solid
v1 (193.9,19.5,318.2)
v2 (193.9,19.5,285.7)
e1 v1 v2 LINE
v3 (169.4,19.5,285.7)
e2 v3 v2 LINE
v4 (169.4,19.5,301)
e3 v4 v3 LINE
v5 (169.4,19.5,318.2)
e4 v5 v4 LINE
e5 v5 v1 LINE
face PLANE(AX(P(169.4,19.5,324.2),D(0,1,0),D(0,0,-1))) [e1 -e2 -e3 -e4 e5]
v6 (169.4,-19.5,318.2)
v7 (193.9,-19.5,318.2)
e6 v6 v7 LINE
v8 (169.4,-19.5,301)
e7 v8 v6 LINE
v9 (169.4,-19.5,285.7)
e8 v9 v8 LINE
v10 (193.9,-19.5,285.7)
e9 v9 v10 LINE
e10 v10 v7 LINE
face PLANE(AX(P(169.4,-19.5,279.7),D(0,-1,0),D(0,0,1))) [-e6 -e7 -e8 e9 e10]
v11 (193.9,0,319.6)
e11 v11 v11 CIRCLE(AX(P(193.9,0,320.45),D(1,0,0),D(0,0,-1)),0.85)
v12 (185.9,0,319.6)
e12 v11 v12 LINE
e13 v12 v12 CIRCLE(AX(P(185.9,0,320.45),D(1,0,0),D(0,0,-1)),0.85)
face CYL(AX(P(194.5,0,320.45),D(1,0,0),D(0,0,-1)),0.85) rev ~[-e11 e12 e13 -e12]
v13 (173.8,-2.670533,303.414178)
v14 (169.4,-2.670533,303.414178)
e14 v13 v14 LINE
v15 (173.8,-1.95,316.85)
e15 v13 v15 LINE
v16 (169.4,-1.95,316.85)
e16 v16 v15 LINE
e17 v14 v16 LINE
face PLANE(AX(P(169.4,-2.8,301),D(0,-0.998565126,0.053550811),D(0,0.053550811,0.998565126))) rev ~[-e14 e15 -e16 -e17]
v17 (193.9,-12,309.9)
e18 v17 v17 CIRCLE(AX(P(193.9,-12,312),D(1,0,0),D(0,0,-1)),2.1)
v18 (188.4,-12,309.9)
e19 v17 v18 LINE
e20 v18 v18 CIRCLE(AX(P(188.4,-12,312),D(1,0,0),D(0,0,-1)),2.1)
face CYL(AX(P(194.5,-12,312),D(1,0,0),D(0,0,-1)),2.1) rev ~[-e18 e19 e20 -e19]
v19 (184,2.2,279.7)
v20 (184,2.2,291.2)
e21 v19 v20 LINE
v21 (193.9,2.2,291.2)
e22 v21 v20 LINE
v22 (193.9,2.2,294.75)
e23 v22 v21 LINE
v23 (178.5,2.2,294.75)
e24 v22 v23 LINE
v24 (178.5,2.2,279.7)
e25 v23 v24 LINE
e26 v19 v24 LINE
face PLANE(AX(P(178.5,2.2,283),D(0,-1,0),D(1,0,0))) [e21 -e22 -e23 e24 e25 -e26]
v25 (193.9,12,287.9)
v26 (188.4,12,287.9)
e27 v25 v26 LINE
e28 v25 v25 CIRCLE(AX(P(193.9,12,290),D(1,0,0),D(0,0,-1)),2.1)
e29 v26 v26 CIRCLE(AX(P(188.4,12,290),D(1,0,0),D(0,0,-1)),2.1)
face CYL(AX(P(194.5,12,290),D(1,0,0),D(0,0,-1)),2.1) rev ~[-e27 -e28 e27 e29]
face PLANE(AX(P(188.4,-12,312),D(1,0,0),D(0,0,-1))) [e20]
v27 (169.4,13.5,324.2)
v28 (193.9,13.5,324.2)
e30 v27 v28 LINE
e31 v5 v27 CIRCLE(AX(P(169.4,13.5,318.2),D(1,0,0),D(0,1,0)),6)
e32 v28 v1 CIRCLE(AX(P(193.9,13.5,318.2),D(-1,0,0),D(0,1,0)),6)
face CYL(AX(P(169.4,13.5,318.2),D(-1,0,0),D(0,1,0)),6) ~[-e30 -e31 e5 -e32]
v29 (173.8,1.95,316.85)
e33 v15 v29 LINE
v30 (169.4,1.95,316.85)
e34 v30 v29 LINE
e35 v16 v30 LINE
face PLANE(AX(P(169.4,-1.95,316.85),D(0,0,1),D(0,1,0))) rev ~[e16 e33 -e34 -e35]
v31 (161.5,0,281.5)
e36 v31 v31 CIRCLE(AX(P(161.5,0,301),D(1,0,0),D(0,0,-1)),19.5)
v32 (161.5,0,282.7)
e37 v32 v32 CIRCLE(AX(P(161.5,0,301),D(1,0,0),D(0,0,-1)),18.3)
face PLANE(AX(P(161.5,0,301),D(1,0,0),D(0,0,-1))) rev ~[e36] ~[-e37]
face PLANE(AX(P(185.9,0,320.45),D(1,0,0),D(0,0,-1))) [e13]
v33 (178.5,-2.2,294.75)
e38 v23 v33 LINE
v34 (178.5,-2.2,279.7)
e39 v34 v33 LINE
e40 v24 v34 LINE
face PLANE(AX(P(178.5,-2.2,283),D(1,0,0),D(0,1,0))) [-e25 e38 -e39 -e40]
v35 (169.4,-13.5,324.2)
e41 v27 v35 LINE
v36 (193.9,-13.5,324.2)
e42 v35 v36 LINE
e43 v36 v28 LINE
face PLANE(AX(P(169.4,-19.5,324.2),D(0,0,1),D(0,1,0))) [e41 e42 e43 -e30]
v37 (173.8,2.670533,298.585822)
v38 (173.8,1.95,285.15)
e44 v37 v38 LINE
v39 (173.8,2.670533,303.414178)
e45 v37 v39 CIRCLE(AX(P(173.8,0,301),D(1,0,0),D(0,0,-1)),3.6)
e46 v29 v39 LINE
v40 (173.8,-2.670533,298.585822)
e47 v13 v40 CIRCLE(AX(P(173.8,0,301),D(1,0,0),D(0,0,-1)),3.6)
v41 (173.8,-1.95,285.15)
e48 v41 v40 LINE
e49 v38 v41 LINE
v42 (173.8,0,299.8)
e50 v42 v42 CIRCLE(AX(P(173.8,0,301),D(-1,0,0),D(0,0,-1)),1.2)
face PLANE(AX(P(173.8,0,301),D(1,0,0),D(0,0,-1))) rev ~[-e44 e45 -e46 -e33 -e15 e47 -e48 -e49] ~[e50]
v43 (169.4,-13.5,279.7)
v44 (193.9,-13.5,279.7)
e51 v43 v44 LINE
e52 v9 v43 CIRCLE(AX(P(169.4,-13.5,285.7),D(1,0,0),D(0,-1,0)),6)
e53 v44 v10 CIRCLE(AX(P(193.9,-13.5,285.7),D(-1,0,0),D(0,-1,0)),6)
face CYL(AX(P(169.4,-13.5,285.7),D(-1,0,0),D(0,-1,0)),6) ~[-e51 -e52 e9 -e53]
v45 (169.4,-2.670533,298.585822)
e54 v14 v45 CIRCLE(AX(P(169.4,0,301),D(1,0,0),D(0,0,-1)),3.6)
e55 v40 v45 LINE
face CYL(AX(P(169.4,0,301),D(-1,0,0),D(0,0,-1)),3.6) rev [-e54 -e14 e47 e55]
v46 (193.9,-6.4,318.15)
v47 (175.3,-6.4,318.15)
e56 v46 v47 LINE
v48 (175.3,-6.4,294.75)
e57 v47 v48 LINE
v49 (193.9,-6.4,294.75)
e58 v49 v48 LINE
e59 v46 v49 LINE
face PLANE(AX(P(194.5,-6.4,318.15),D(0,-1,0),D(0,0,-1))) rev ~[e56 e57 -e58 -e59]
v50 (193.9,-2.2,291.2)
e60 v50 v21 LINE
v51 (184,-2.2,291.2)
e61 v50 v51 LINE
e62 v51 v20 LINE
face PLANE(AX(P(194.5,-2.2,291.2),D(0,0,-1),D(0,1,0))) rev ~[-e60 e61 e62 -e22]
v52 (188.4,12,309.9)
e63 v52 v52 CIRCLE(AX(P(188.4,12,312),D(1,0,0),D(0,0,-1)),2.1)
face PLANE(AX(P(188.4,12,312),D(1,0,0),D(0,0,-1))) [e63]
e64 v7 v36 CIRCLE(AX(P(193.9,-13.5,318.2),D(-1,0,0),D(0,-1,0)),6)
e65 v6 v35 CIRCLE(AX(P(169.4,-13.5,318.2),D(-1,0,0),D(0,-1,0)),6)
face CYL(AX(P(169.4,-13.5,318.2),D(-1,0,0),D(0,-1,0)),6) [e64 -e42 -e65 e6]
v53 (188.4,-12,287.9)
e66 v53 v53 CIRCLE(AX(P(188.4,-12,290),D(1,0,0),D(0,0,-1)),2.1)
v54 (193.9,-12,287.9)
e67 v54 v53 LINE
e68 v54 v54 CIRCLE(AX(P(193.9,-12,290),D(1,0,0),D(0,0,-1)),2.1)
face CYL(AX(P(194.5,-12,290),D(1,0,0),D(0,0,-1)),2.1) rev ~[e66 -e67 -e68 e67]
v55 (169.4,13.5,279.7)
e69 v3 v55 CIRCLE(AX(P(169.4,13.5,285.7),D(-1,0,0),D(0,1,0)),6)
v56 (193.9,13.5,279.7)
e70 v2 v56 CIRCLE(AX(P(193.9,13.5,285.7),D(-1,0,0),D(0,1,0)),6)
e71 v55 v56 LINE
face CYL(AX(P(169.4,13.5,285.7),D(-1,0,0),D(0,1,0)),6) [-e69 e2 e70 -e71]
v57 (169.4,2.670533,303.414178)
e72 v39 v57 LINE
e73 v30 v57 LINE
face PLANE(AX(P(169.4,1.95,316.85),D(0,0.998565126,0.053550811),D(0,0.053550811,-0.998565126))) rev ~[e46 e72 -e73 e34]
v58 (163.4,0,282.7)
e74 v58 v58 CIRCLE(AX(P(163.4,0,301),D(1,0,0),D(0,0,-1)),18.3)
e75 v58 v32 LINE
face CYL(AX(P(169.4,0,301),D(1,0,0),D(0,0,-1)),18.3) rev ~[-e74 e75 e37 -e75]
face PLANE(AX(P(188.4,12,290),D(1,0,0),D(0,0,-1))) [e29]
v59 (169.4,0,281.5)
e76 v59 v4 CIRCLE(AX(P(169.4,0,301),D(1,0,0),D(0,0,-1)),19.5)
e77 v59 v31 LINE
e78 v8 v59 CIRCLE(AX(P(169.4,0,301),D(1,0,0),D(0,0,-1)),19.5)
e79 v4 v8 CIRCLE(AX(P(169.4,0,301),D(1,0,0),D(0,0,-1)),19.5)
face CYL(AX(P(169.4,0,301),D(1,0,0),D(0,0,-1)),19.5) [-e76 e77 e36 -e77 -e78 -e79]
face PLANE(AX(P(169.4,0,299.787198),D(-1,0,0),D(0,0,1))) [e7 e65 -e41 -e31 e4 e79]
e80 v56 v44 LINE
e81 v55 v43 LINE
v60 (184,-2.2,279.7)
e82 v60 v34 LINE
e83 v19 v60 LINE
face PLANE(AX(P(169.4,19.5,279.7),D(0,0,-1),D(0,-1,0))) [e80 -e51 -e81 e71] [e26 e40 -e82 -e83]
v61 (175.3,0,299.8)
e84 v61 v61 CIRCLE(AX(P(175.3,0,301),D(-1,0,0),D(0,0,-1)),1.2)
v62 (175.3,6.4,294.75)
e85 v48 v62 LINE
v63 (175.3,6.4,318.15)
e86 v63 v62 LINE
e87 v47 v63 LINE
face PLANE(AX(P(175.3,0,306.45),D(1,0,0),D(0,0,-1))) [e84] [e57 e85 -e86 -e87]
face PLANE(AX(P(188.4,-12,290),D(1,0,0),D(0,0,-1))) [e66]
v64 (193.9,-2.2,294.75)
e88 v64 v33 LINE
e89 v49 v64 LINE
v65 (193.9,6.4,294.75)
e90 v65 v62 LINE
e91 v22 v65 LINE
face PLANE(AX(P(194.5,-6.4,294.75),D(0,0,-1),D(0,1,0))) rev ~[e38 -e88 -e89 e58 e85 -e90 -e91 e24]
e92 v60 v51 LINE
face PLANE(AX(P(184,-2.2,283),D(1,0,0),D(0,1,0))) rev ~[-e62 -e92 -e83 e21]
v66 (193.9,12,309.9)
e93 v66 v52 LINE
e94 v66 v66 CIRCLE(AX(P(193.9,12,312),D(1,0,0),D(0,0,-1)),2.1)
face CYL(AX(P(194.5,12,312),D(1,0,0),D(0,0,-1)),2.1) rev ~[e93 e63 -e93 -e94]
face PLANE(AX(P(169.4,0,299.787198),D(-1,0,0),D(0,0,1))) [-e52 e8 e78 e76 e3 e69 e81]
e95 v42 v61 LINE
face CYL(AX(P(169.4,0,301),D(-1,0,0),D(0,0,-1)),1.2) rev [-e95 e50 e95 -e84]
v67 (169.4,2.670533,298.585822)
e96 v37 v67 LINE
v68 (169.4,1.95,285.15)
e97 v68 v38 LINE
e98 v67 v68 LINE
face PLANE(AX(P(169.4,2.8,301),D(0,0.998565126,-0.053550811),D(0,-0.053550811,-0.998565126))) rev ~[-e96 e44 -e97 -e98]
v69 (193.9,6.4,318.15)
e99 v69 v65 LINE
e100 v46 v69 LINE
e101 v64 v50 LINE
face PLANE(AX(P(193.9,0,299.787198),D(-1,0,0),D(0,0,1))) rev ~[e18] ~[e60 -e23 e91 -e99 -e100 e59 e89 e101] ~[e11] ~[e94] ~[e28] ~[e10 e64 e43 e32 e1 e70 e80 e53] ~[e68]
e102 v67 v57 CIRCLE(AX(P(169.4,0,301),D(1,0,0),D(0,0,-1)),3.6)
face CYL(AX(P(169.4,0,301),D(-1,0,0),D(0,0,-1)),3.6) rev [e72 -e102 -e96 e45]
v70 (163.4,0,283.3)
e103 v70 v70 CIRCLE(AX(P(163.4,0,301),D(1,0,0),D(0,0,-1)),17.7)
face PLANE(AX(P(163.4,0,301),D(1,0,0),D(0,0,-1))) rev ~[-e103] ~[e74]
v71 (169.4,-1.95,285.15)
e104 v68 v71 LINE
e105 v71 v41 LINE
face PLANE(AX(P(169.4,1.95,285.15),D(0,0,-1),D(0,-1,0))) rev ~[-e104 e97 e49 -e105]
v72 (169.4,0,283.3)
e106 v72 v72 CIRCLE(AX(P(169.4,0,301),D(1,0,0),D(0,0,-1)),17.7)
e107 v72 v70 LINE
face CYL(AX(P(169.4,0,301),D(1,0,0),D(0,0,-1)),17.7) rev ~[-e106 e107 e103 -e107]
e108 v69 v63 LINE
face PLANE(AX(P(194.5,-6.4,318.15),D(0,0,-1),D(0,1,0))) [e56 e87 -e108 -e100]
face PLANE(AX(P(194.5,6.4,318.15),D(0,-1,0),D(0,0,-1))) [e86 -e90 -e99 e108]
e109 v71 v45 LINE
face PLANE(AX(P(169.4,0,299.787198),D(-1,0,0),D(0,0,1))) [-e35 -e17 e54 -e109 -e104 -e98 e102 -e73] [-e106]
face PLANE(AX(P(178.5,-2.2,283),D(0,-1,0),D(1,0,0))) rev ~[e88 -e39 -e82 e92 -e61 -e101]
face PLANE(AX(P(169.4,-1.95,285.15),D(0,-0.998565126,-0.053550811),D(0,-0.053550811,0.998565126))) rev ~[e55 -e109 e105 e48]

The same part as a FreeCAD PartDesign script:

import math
import FreeCAD as App
import Part
import Sketcher

V = App.Vector
Q = App.Units.Quantity

doc = App.newDocument("Part")
body = doc.addObject("PartDesign::Body", "Body")

sketch1 = body.newObject("Sketcher::SketchObject", "Sketch")
sketch1.AttachmentSupport = (doc.getObject("YZ_Plane"), [""])
sketch1.MapMode = "FlatFace"
sketch1.AttachmentOffset = App.Placement(V(0, 0, 169.4), App.Rotation())
sketch1.addGeometry([
    Part.LineSegment(V(8, 324, 0), V(-8, 324, 0)),
    Part.LineSegment(V(-8, 324, 0), V(-8, 284, 0)),
    Part.LineSegment(V(-8, 284, 0), V(8, 284, 0)),
    Part.LineSegment(V(8, 284, 0), V(8, 324, 0)),
], False)
sketch1.addConstraint([
    Sketcher.Constraint("Coincident", 0, 2, 1, 1),
    Sketcher.Constraint("Coincident", 1, 2, 2, 1),
    Sketcher.Constraint("Coincident", 2, 2, 3, 1),
    Sketcher.Constraint("Coincident", 3, 2, 0, 1),
    Sketcher.Constraint("Horizontal", 0),
    Sketcher.Constraint("Vertical", 1),
    Sketcher.Constraint("Horizontal", 2),
    Sketcher.Constraint("Vertical", 3),
    Sketcher.Constraint("DistanceX", 0, 2, 0, 1, Q("17 mm")),
    Sketcher.Constraint("DistanceY", 1, 2, 1, 1, Q("40.7 mm")),
    Sketcher.Constraint("DistanceX", 0, 2, -1, 1, Q("8.5 mm")),
    Sketcher.Constraint("DistanceY", -1, 1, 0, 2, Q("324.2 mm")),
])
pad1 = body.newObject("PartDesign::Pad", "Pad")
pad1.Profile = sketch1
pad1.Length = 24.5

sketch2 = body.newObject("Sketcher::SketchObject", "Sketch001")
sketch2.AttachmentSupport = (doc.getObject("YZ_Plane"), [""])
sketch2.MapMode = "FlatFace"
sketch2.AttachmentOffset = App.Placement(V(0, 0, 189.9), App.Rotation())
sketch2.addGeometry([
    Part.LineSegment(V(17, 324, 0), V(-17, 324, 0)),
    Part.LineSegment(V(-17, 324, 0), V(-17, 284, 0)),
    Part.LineSegment(V(-17, 284, 0), V(17, 284, 0)),
    Part.LineSegment(V(17, 284, 0), V(17, 324, 0)),
], False)
sketch2.addConstraint([
    Sketcher.Constraint("Coincident", 0, 2, 1, 1),
    Sketcher.Constraint("Coincident", 1, 2, 2, 1),
    Sketcher.Constraint("Coincident", 2, 2, 3, 1),
    Sketcher.Constraint("Coincident", 3, 2, 0, 1),
    Sketcher.Constraint("Horizontal", 0),
    Sketcher.Constraint("Vertical", 1),
    Sketcher.Constraint("Horizontal", 2),
    Sketcher.Constraint("Vertical", 3),
    Sketcher.Constraint("DistanceX", 0, 2, 0, 1, Q("34 mm")),
    Sketcher.Constraint("DistanceY", 1, 2, 1, 1, Q("40.7 mm")),
    Sketcher.Constraint("DistanceX", 0, 2, -1, 1, Q("17 mm")),
    Sketcher.Constraint("DistanceY", -1, 1, 0, 2, Q("324.2 mm")),
])
pad2 = body.newObject("PartDesign::Pad", "Pad001")
pad2.Profile = sketch2
pad2.Length = 4

sketch3 = body.newObject("Sketcher::SketchObject", "Sketch002")
sketch3.AttachmentSupport = (doc.getObject("YZ_Plane"), [""])
sketch3.MapMode = "FlatFace"
sketch3.AttachmentOffset = App.Placement(V(0, 0, 169.4), App.Rotation())
sketch3.addGeometry(Part.Circle(V(0, 301, 0), V(0, 0, 1), 3.6), False)
sketch3.addConstraint([
    Sketcher.Constraint("PointOnObject", 0, 3, -2),
    Sketcher.Constraint("Diameter", 0, Q("7.2 mm")),
    Sketcher.Constraint("DistanceY", -1, 1, 0, 3, Q("301 mm")),
])
pocket1 = body.newObject("PartDesign::Pocket", "Pocket")
pocket1.Profile = sketch3
pocket1.Length = 4.4
pocket1.Reversed = True

sketch4 = body.newObject("Sketcher::SketchObject", "Sketch003")
sketch4.AttachmentSupport = (doc.getObject("YZ_Plane"), [""])
sketch4.MapMode = "FlatFace"
sketch4.AttachmentOffset = App.Placement(V(0, 0, 169.4), App.Rotation())
sketch4.addGeometry([
    Part.LineSegment(V(-2.8, 301, 0), V(-1.9, 285.1, 0)),
    Part.LineSegment(V(-1.9, 285.1, 0), V(1.9, 285.1, 0)),
    Part.LineSegment(V(1.9, 285.1, 0), V(2.8, 301, 0)),
    Part.LineSegment(V(2.8, 301, 0), V(1.9, 316.9, 0)),
    Part.LineSegment(V(1.9, 316.9, 0), V(-1.9, 316.9, 0)),
    Part.LineSegment(V(-1.9, 316.9, 0), V(-2.8, 301, 0)),
], False)
sketch4.addConstraint([
    Sketcher.Constraint("Coincident", 0, 2, 1, 1),
    Sketcher.Constraint("Coincident", 1, 2, 2, 1),
    Sketcher.Constraint("Coincident", 2, 2, 3, 1),
    Sketcher.Constraint("Coincident", 3, 2, 4, 1),
    Sketcher.Constraint("Coincident", 4, 2, 5, 1),
    Sketcher.Constraint("Coincident", 5, 2, 0, 1),
    Sketcher.Constraint("Horizontal", 1),
    Sketcher.Constraint("Horizontal", 4),
    Sketcher.Constraint("Symmetric", 2, 2, 5, 2, -2),
    Sketcher.Constraint("Parallel", 0, 3),
    Sketcher.Constraint("Parallel", 2, 5),
    Sketcher.Constraint("Vertical", 1, 2, 3, 2),
    Sketcher.Constraint("Vertical", 0, 2, 4, 2),
    Sketcher.Constraint("DistanceX", 1, 1, 1, 2, Q("3.9 mm")),
    Sketcher.Constraint("DistanceY", -1, 1, 2, 2, Q("301 mm")),
    Sketcher.Constraint("DistanceX", -1, 1, 2, 2, Q("2.8 mm")),
    Sketcher.Constraint("DistanceY", 1, 2, 3, 2, Q("31.7 mm")),
])
pocket2 = body.newObject("PartDesign::Pocket", "Pocket001")
pocket2.Profile = sketch4
pocket2.Length = 4.4
pocket2.Reversed = True

sketch5 = body.newObject("Sketcher::SketchObject", "Sketch004")
sketch5.AttachmentSupport = (doc.getObject("YZ_Plane"), [""])
sketch5.MapMode = "FlatFace"
sketch5.AttachmentOffset = App.Placement(V(0, 0, 169.4), App.Rotation())
sketch5.addGeometry(Part.Circle(V(0, 301, 0), V(0, 0, 1), 1.2), False)
sketch5.addConstraint([
    Sketcher.Constraint("PointOnObject", 0, 3, -2),
    Sketcher.Constraint("Diameter", 0, Q("2.4 mm")),
    Sketcher.Constraint("DistanceY", -1, 1, 0, 3, Q("301 mm")),
])
pocket3 = body.newObject("PartDesign::Pocket", "Pocket002")
pocket3.Profile = sketch5
pocket3.Length = 7
pocket3.Reversed = True

sketch6 = body.newObject("Sketcher::SketchObject", "Sketch005")
sketch6.AttachmentSupport = (doc.getObject("YZ_Plane"), [""])
sketch6.MapMode = "FlatFace"
sketch6.AttachmentOffset = App.Placement(V(0, 0, 194.5), App.Rotation())
sketch6.addGeometry([
    Part.LineSegment(V(6, 318, 0), V(-6, 318, 0)),
    Part.LineSegment(V(-6, 318, 0), V(-6, 295, 0)),
    Part.LineSegment(V(-6, 295, 0), V(6, 295, 0)),
    Part.LineSegment(V(6, 295, 0), V(6, 318, 0)),
], False)
sketch6.addConstraint([
    Sketcher.Constraint("Coincident", 0, 2, 1, 1),
    Sketcher.Constraint("Coincident", 1, 2, 2, 1),
    Sketcher.Constraint("Coincident", 2, 2, 3, 1),
    Sketcher.Constraint("Coincident", 3, 2, 0, 1),
    Sketcher.Constraint("Horizontal", 0),
    Sketcher.Constraint("Vertical", 1),
    Sketcher.Constraint("Horizontal", 2),
    Sketcher.Constraint("Vertical", 3),
    Sketcher.Constraint("DistanceX", 0, 2, 0, 1, Q("12.8 mm")),
    Sketcher.Constraint("DistanceY", 1, 2, 1, 1, Q("23.4 mm")),
    Sketcher.Constraint("DistanceX", 0, 2, -1, 1, Q("6.4 mm")),
    Sketcher.Constraint("DistanceY", -1, 1, 0, 2, Q("318.15 mm")),
])
pocket4 = body.newObject("PartDesign::Pocket", "Pocket003")
pocket4.Profile = sketch6
pocket4.Length = 19.2

sketch7 = body.newObject("Sketcher::SketchObject", "Sketch006")
sketch7.AttachmentSupport = (doc.getObject("YZ_Plane"), [""])
sketch7.MapMode = "FlatFace"
sketch7.AttachmentOffset = App.Placement(V(0, 0, 194.5), App.Rotation())
sketch7.addGeometry([
    Part.LineSegment(V(2.2, 294.9, 0), V(-2.2, 294.9, 0)),
    Part.LineSegment(V(-2.2, 294.9, 0), V(-2.2, 291.2, 0)),
    Part.LineSegment(V(-2.2, 291.2, 0), V(2.2, 291.2, 0)),
    Part.LineSegment(V(2.2, 291.2, 0), V(2.2, 294.9, 0)),
], False)
sketch7.addConstraint([
    Sketcher.Constraint("Coincident", 0, 2, 1, 1),
    Sketcher.Constraint("Coincident", 1, 2, 2, 1),
    Sketcher.Constraint("Coincident", 2, 2, 3, 1),
    Sketcher.Constraint("Coincident", 3, 2, 0, 1),
    Sketcher.Constraint("Horizontal", 0),
    Sketcher.Constraint("Vertical", 1),
    Sketcher.Constraint("Horizontal", 2),
    Sketcher.Constraint("Vertical", 3),
    Sketcher.Constraint("DistanceX", 0, 2, 0, 1, Q("4.4 mm")),
    Sketcher.Constraint("DistanceY", 1, 2, 1, 1, Q("3.7 mm")),
    Sketcher.Constraint("DistanceX", 0, 2, -1, 1, Q("2.2 mm")),
    Sketcher.Constraint("DistanceY", -1, 1, 0, 2, Q("294.9 mm")),
])
pocket5 = body.newObject("PartDesign::Pocket", "Pocket004")
pocket5.Profile = sketch7
pocket5.Length = 16

sketch8 = body.newObject("Sketcher::SketchObject", "Sketch007")
sketch8.AttachmentSupport = (doc.getObject("YZ_Plane"), [""])
sketch8.MapMode = "FlatFace"
sketch8.AttachmentOffset = App.Placement(V(0, 0, 194.5), App.Rotation())
sketch8.addGeometry(Part.Circle(V(0, 320.4, 0), V(0, 0, 1), 0.8), False)
sketch8.addConstraint([
    Sketcher.Constraint("PointOnObject", 0, 3, -2),
    Sketcher.Constraint("Diameter", 0, Q("1.7 mm")),
    Sketcher.Constraint("DistanceY", -1, 1, 0, 3, Q("320.45 mm")),
])
pocket6 = body.newObject("PartDesign::Pocket", "Pocket005")
pocket6.Profile = sketch8
pocket6.Length = 8.6

sketch9 = body.newObject("Sketcher::SketchObject", "Sketch008")
sketch9.AttachmentSupport = (doc.getObject("YZ_Plane"), [""])
sketch9.MapMode = "FlatFace"
sketch9.AttachmentOffset = App.Placement(V(0, 0, 194.5), App.Rotation())
sketch9.addGeometry([
    Part.Circle(V(12, 290, 0), V(0, 0, 1), 1.7),
    Part.Circle(V(-12, 290, 0), V(0, 0, 1), 1.7),
    Part.Circle(V(12, 312, 0), V(0, 0, 1), 1.7),
    Part.Circle(V(-12, 312, 0), V(0, 0, 1), 1.7),
], False)
sketch9.addConstraint([
    Sketcher.Constraint("Equal", 0, 1),
    Sketcher.Constraint("Equal", 1, 2),
    Sketcher.Constraint("Equal", 2, 3),
    Sketcher.Constraint("Symmetric", 0, 3, 1, 3, -2),
    Sketcher.Constraint("Symmetric", 2, 3, 3, 3, -2),
    Sketcher.Constraint("Vertical", 0, 3, 2, 3),
    Sketcher.Constraint("Diameter", 0, Q("3.4 mm")),
    Sketcher.Constraint("DistanceX", -1, 1, 0, 3, Q("12 mm")),
    Sketcher.Constraint("DistanceY", -1, 1, 0, 3, Q("290 mm")),
    Sketcher.Constraint("DistanceY", -1, 1, 2, 3, Q("312 mm")),
])
pocket7 = body.newObject("PartDesign::Pocket", "Pocket006")
pocket7.Profile = sketch9
pocket7.Length = 4.7

sketch10 = body.newObject("Sketcher::SketchObject", "Sketch009")
sketch10.AttachmentSupport = (doc.getObject("XY_Plane"), [""])
sketch10.MapMode = "FlatFace"
sketch10.AttachmentOffset = App.Placement(V(0, 0, 283), App.Rotation())
sketch10.addGeometry([
    Part.LineSegment(V(178.5, 2.2, 0), V(178.5, -2.2, 0)),
    Part.LineSegment(V(178.5, -2.2, 0), V(184, -2.2, 0)),
    Part.LineSegment(V(184, -2.2, 0), V(184, 2.2, 0)),
    Part.LineSegment(V(184, 2.2, 0), V(178.5, 2.2, 0)),
], False)
sketch10.addConstraint([
    Sketcher.Constraint("Coincident", 0, 2, 1, 1),
    Sketcher.Constraint("Coincident", 1, 2, 2, 1),
    Sketcher.Constraint("Coincident", 2, 2, 3, 1),
    Sketcher.Constraint("Coincident", 3, 2, 0, 1),
    Sketcher.Constraint("Vertical", 0),
    Sketcher.Constraint("Horizontal", 1),
    Sketcher.Constraint("Vertical", 2),
    Sketcher.Constraint("Horizontal", 3),
    Sketcher.Constraint("DistanceX", 1, 1, 1, 2, Q("5.5 mm")),
    Sketcher.Constraint("DistanceY", 0, 2, 0, 1, Q("4.4 mm")),
    Sketcher.Constraint("DistanceX", -1, 1, 1, 2, Q("184 mm")),
    Sketcher.Constraint("DistanceY", 0, 2, -1, 1, Q("2.2 mm")),
])
pocket8 = body.newObject("PartDesign::Pocket", "Pocket007")
pocket8.Profile = sketch10
pocket8.Length = 8.3
pocket8.Reversed = True

sketch11 = body.newObject("Sketcher::SketchObject", "Sketch010")
sketch11.AttachmentSupport = (doc.getObject("YZ_Plane"), [""])
sketch11.MapMode = "FlatFace"
sketch11.AttachmentOffset = App.Placement(V(0, 0, 169.4), App.Rotation())
sketch11.addGeometry([
    Part.LineSegment(V(-20, 324, 0), V(-20, 280, 0)),
    Part.LineSegment(V(-20, 280, 0), V(20, 280, 0)),
    Part.LineSegment(V(20, 280, 0), V(20, 324, 0)),
    Part.LineSegment(V(20, 324, 0), V(8, 324, 0)),
    Part.LineSegment(V(8, 324, 0), V(8, 284, 0)),
    Part.LineSegment(V(8, 284, 0), V(-8, 284, 0)),
    Part.LineSegment(V(-8, 284, 0), V(-8, 324, 0)),
    Part.LineSegment(V(-8, 324, 0), V(-20, 324, 0)),
], False)
sketch11.addConstraint([
    Sketcher.Constraint("Coincident", 0, 2, 1, 1),
    Sketcher.Constraint("Coincident", 1, 2, 2, 1),
    Sketcher.Constraint("Coincident", 2, 2, 3, 1),
    Sketcher.Constraint("Coincident", 3, 2, 4, 1),
    Sketcher.Constraint("Coincident", 4, 2, 5, 1),
    Sketcher.Constraint("Coincident", 5, 2, 6, 1),
    Sketcher.Constraint("Coincident", 6, 2, 7, 1),
    Sketcher.Constraint("Coincident", 7, 2, 0, 1),
    Sketcher.Constraint("Vertical", 0),
    Sketcher.Constraint("Horizontal", 1),
    Sketcher.Constraint("Vertical", 2),
    Sketcher.Constraint("Horizontal", 3),
    Sketcher.Constraint("Vertical", 4),
    Sketcher.Constraint("Horizontal", 5),
    Sketcher.Constraint("Vertical", 6),
    Sketcher.Constraint("Horizontal", 7),
    Sketcher.Constraint("Symmetric", 3, 2, 6, 2, -2),
    Sketcher.Constraint("Equal", 3, 7),
    Sketcher.Constraint("DistanceX", 1, 1, 1, 2, Q("39 mm")),
    Sketcher.Constraint("DistanceX", 3, 2, 3, 1, Q("11 mm")),
    Sketcher.Constraint("DistanceY", 0, 2, 0, 1, Q("44.5 mm")),
    Sketcher.Constraint("DistanceY", 4, 2, 4, 1, Q("40.7 mm")),
    Sketcher.Constraint("DistanceY", -1, 1, 0, 2, Q("279.7 mm")),
])
pad3 = body.newObject("PartDesign::Pad", "Pad002")
pad3.Profile = sketch11
pad3.Length = 24.5

sketch12 = body.newObject("Sketcher::SketchObject", "Sketch011")
sketch12.AttachmentSupport = (doc.getObject("XY_Plane"), [""])
sketch12.MapMode = "FlatFace"
sketch12.AttachmentOffset = App.Placement(V(0, 0, 283), App.Rotation())
sketch12.addGeometry([
    Part.LineSegment(V(178.5, 2.2, 0), V(178.5, -2.2, 0)),
    Part.LineSegment(V(178.5, -2.2, 0), V(184, -2.2, 0)),
    Part.LineSegment(V(184, -2.2, 0), V(184, 2.2, 0)),
    Part.LineSegment(V(184, 2.2, 0), V(178.5, 2.2, 0)),
], False)
sketch12.addConstraint([
    Sketcher.Constraint("Coincident", 0, 2, 1, 1),
    Sketcher.Constraint("Coincident", 1, 2, 2, 1),
    Sketcher.Constraint("Coincident", 2, 2, 3, 1),
    Sketcher.Constraint("Coincident", 3, 2, 0, 1),
    Sketcher.Constraint("Vertical", 0),
    Sketcher.Constraint("Horizontal", 1),
    Sketcher.Constraint("Vertical", 2),
    Sketcher.Constraint("Horizontal", 3),
    Sketcher.Constraint("DistanceX", 1, 1, 1, 2, Q("5.5 mm")),
    Sketcher.Constraint("DistanceY", 0, 2, 0, 1, Q("4.4 mm")),
    Sketcher.Constraint("DistanceX", -1, 1, 1, 2, Q("184 mm")),
    Sketcher.Constraint("DistanceY", 0, 2, -1, 1, Q("2.2 mm")),
])
pocket9 = body.newObject("PartDesign::Pocket", "Pocket008")
pocket9.Profile = sketch12
pocket9.Length = 7
pocket9.Midplane = True

sketch13 = body.newObject("Sketcher::SketchObject", "Sketch012")
sketch13.AttachmentSupport = (doc.getObject("YZ_Plane"), [""])
sketch13.MapMode = "FlatFace"
sketch13.AttachmentOffset = App.Placement(V(0, 0, 169.4), App.Rotation())
sketch13.addGeometry([
    Part.LineSegment(V(13.5, 325.5, 0), V(13.5, 324.2, 0)),
    Part.ArcOfCircle(Part.Circle(V(13.5, 318.2, 0), V(0, 0, 1), 6), math.radians(0), math.radians(90)),
    Part.LineSegment(V(19.5, 318.2, 0), V(20.5, 318.2, 0)),
    Part.LineSegment(V(20.5, 318.2, 0), V(20.5, 325.5, 0)),
    Part.LineSegment(V(20.5, 325.5, 0), V(13.5, 325.5, 0)),
    Part.LineSegment(V(-13.5, 324.2, 0), V(-13.5, 325.5, 0)),
    Part.LineSegment(V(-13.5, 325.5, 0), V(-20.5, 325.5, 0)),
    Part.LineSegment(V(-20.5, 325.5, 0), V(-20.5, 318.2, 0)),
    Part.LineSegment(V(-20.5, 318.2, 0), V(-19.5, 318.2, 0)),
    Part.ArcOfCircle(Part.Circle(V(-13.5, 318.2, 0), V(0, 0, 1), 6), math.radians(90), math.radians(180)),
    Part.LineSegment(V(13.5, 279.7, 0), V(13.5, 278.4, 0)),
    Part.LineSegment(V(13.5, 278.4, 0), V(20.5, 278.4, 0)),
    Part.LineSegment(V(20.5, 278.4, 0), V(20.5, 285.7, 0)),
    Part.LineSegment(V(20.5, 285.7, 0), V(19.5, 285.7, 0)),
    Part.ArcOfCircle(Part.Circle(V(13.5, 285.7, 0), V(0, 0, 1), 6), math.radians(-90), math.radians(0)),
    Part.LineSegment(V(-13.5, 278.4, 0), V(-13.5, 279.7, 0)),
    Part.ArcOfCircle(Part.Circle(V(-13.5, 285.7, 0), V(0, 0, 1), 6), math.radians(180), math.radians(270)),
    Part.LineSegment(V(-19.5, 285.7, 0), V(-20.5, 285.7, 0)),
    Part.LineSegment(V(-20.5, 285.7, 0), V(-20.5, 278.4, 0)),
    Part.LineSegment(V(-20.5, 278.4, 0), V(-13.5, 278.4, 0)),
], False)
sketch13.addConstraint([
    Sketcher.Constraint("Coincident", 0, 2, 1, 2),
    Sketcher.Constraint("Coincident", 1, 1, 2, 1),
    Sketcher.Constraint("Coincident", 2, 2, 3, 1),
    Sketcher.Constraint("Coincident", 3, 2, 4, 1),
    Sketcher.Constraint("Coincident", 4, 2, 0, 1),
    Sketcher.Constraint("Coincident", 5, 2, 6, 1),
    Sketcher.Constraint("Coincident", 6, 2, 7, 1),
    Sketcher.Constraint("Coincident", 7, 2, 8, 1),
    Sketcher.Constraint("Coincident", 8, 2, 9, 2),
    Sketcher.Constraint("Coincident", 9, 1, 5, 1),
    Sketcher.Constraint("Coincident", 10, 2, 11, 1),
    Sketcher.Constraint("Coincident", 11, 2, 12, 1),
    Sketcher.Constraint("Coincident", 12, 2, 13, 1),
    Sketcher.Constraint("Coincident", 13, 2, 14, 2),
    Sketcher.Constraint("Coincident", 14, 1, 10, 1),
    Sketcher.Constraint("Coincident", 15, 2, 16, 2),
    Sketcher.Constraint("Coincident", 16, 1, 17, 1),
    Sketcher.Constraint("Coincident", 17, 2, 18, 1),
    Sketcher.Constraint("Coincident", 18, 2, 19, 1),
    Sketcher.Constraint("Coincident", 19, 2, 15, 1),
    Sketcher.Constraint("Vertical", 0),
    Sketcher.Constraint("Horizontal", 2),
    Sketcher.Constraint("Vertical", 3),
    Sketcher.Constraint("Horizontal", 4),
    Sketcher.Constraint("Vertical", 5),
    Sketcher.Constraint("Horizontal", 6),
    Sketcher.Constraint("Vertical", 7),
    Sketcher.Constraint("Horizontal", 8),
    Sketcher.Constraint("Vertical", 10),
    Sketcher.Constraint("Horizontal", 11),
    Sketcher.Constraint("Vertical", 12),
    Sketcher.Constraint("Horizontal", 13),
    Sketcher.Constraint("Vertical", 15),
    Sketcher.Constraint("Horizontal", 17),
    Sketcher.Constraint("Vertical", 18),
    Sketcher.Constraint("Horizontal", 19),
    Sketcher.Constraint("Equal", 1, 9),
    Sketcher.Constraint("Equal", 9, 14),
    Sketcher.Constraint("Equal", 14, 16),
    Sketcher.Constraint("Symmetric", 1, 3, 9, 3, -2),
    Sketcher.Constraint("Symmetric", 14, 3, 16, 3, -2),
    Sketcher.Constraint("Symmetric", 4, 2, 5, 2, -2),
    Sketcher.Constraint("Symmetric", 2, 2, 7, 2, -2),
    Sketcher.Constraint("Symmetric", 12, 2, 17, 2, -2),
    Sketcher.Constraint("Symmetric", 10, 2, 19, 2, -2),
    Sketcher.Constraint("Horizontal", 9, 3, 1, 1),
    Sketcher.Constraint("Horizontal", 16, 3, 12, 2),
    Sketcher.Constraint("Vertical", 1, 3, 14, 3),
    Sketcher.Constraint("Vertical", 14, 3, 0, 2),
    Sketcher.Constraint("Vertical", 4, 2, 10, 2),
    Sketcher.Constraint("Vertical", 3, 2, 11, 2),
    Sketcher.Constraint("Equal", 5, 10),
    Sketcher.Constraint("Radius", 1, Q("6 mm")),
    Sketcher.Constraint("DistanceX", 2, 1, 2, 2, Q("1 mm")),
    Sketcher.Constraint("DistanceY", 0, 2, 0, 1, Q("1.3 mm")),
    Sketcher.Constraint("DistanceX", 9, 3, 1, 3, Q("27 mm")),
    Sketcher.Constraint("DistanceY", -1, 1, 1, 3, Q("318.2 mm")),
    Sketcher.Constraint("DistanceY", -1, 1, 14, 3, Q("285.7 mm")),
])
pocket10 = body.newObject("PartDesign::Pocket", "Pocket009")
pocket10.Profile = sketch13
pocket10.Type = "ThroughAll"
pocket10.Reversed = True

sketch14 = body.newObject("Sketcher::SketchObject", "Sketch013")
sketch14.AttachmentSupport = (doc.getObject("YZ_Plane"), [""])
sketch14.MapMode = "FlatFace"
sketch14.AttachmentOffset = App.Placement(V(0, 0, 169.4), App.Rotation())
sketch14.addGeometry([
    Part.Circle(V(0, 301, 0), V(0, 0, 1), 20),
    Part.Circle(V(0, 301, 0), V(0, 0, 1), 18),
], False)
sketch14.addConstraint([
    Sketcher.Constraint("Coincident", 1, 3, 0, 3),
    Sketcher.Constraint("PointOnObject", 0, 3, -2),
    Sketcher.Constraint("Diameter", 0, Q("39 mm")),
    Sketcher.Constraint("Diameter", 1, Q("36.6 mm")),
    Sketcher.Constraint("DistanceY", -1, 1, 0, 3, Q("301 mm")),
])
pad4 = body.newObject("PartDesign::Pad", "Pad003")
pad4.Profile = sketch14
pad4.Length = 7.9
pad4.Reversed = True

sketch15 = body.newObject("Sketcher::SketchObject", "Sketch014")
sketch15.AttachmentSupport = (doc.getObject("YZ_Plane"), [""])
sketch15.MapMode = "FlatFace"
sketch15.AttachmentOffset = App.Placement(V(0, 0, 194.5), App.Rotation())
sketch15.addGeometry([
    Part.Circle(V(12, 290, 0), V(0, 0, 1), 2.1),
    Part.Circle(V(-12, 290, 0), V(0, 0, 1), 2.1),
    Part.Circle(V(12, 312, 0), V(0, 0, 1), 2.1),
    Part.Circle(V(-12, 312, 0), V(0, 0, 1), 2.1),
], False)
sketch15.addConstraint([
    Sketcher.Constraint("Equal", 0, 1),
    Sketcher.Constraint("Equal", 1, 2),
    Sketcher.Constraint("Equal", 2, 3),
    Sketcher.Constraint("Symmetric", 0, 3, 1, 3, -2),
    Sketcher.Constraint("Symmetric", 2, 3, 3, 3, -2),
    Sketcher.Constraint("Vertical", 0, 3, 2, 3),
    Sketcher.Constraint("Diameter", 0, Q("4.2 mm")),
    Sketcher.Constraint("DistanceX", -1, 1, 0, 3, Q("12 mm")),
    Sketcher.Constraint("DistanceY", -1, 1, 0, 3, Q("290 mm")),
    Sketcher.Constraint("DistanceY", -1, 1, 2, 3, Q("312 mm")),
])
pocket11 = body.newObject("PartDesign::Pocket", "Pocket010")
pocket11.Profile = sketch15
pocket11.Length = 6.1

sketch16 = body.newObject("Sketcher::SketchObject", "Sketch015")
sketch16.AttachmentSupport = (doc.getObject("YZ_Plane"), [""])
sketch16.MapMode = "FlatFace"
sketch16.AttachmentOffset = App.Placement(V(0, 0, 169.4), App.Rotation())
sketch16.addGeometry([
    Part.Circle(V(0, 301, 0), V(0, 0, 1), 18),
    Part.Circle(V(0, 301, 0), V(0, 0, 1), 18),
], False)
sketch16.addConstraint([
    Sketcher.Constraint("Coincident", 1, 3, 0, 3),
    Sketcher.Constraint("PointOnObject", 0, 3, -2),
    Sketcher.Constraint("Diameter", 0, Q("36.6 mm")),
    Sketcher.Constraint("Diameter", 1, Q("35.4 mm")),
    Sketcher.Constraint("DistanceY", -1, 1, 0, 3, Q("301 mm")),
])
pad5 = body.newObject("PartDesign::Pad", "Pad004")
pad5.Profile = sketch16
pad5.Length = 6
pad5.Reversed = True

doc.recompute()
